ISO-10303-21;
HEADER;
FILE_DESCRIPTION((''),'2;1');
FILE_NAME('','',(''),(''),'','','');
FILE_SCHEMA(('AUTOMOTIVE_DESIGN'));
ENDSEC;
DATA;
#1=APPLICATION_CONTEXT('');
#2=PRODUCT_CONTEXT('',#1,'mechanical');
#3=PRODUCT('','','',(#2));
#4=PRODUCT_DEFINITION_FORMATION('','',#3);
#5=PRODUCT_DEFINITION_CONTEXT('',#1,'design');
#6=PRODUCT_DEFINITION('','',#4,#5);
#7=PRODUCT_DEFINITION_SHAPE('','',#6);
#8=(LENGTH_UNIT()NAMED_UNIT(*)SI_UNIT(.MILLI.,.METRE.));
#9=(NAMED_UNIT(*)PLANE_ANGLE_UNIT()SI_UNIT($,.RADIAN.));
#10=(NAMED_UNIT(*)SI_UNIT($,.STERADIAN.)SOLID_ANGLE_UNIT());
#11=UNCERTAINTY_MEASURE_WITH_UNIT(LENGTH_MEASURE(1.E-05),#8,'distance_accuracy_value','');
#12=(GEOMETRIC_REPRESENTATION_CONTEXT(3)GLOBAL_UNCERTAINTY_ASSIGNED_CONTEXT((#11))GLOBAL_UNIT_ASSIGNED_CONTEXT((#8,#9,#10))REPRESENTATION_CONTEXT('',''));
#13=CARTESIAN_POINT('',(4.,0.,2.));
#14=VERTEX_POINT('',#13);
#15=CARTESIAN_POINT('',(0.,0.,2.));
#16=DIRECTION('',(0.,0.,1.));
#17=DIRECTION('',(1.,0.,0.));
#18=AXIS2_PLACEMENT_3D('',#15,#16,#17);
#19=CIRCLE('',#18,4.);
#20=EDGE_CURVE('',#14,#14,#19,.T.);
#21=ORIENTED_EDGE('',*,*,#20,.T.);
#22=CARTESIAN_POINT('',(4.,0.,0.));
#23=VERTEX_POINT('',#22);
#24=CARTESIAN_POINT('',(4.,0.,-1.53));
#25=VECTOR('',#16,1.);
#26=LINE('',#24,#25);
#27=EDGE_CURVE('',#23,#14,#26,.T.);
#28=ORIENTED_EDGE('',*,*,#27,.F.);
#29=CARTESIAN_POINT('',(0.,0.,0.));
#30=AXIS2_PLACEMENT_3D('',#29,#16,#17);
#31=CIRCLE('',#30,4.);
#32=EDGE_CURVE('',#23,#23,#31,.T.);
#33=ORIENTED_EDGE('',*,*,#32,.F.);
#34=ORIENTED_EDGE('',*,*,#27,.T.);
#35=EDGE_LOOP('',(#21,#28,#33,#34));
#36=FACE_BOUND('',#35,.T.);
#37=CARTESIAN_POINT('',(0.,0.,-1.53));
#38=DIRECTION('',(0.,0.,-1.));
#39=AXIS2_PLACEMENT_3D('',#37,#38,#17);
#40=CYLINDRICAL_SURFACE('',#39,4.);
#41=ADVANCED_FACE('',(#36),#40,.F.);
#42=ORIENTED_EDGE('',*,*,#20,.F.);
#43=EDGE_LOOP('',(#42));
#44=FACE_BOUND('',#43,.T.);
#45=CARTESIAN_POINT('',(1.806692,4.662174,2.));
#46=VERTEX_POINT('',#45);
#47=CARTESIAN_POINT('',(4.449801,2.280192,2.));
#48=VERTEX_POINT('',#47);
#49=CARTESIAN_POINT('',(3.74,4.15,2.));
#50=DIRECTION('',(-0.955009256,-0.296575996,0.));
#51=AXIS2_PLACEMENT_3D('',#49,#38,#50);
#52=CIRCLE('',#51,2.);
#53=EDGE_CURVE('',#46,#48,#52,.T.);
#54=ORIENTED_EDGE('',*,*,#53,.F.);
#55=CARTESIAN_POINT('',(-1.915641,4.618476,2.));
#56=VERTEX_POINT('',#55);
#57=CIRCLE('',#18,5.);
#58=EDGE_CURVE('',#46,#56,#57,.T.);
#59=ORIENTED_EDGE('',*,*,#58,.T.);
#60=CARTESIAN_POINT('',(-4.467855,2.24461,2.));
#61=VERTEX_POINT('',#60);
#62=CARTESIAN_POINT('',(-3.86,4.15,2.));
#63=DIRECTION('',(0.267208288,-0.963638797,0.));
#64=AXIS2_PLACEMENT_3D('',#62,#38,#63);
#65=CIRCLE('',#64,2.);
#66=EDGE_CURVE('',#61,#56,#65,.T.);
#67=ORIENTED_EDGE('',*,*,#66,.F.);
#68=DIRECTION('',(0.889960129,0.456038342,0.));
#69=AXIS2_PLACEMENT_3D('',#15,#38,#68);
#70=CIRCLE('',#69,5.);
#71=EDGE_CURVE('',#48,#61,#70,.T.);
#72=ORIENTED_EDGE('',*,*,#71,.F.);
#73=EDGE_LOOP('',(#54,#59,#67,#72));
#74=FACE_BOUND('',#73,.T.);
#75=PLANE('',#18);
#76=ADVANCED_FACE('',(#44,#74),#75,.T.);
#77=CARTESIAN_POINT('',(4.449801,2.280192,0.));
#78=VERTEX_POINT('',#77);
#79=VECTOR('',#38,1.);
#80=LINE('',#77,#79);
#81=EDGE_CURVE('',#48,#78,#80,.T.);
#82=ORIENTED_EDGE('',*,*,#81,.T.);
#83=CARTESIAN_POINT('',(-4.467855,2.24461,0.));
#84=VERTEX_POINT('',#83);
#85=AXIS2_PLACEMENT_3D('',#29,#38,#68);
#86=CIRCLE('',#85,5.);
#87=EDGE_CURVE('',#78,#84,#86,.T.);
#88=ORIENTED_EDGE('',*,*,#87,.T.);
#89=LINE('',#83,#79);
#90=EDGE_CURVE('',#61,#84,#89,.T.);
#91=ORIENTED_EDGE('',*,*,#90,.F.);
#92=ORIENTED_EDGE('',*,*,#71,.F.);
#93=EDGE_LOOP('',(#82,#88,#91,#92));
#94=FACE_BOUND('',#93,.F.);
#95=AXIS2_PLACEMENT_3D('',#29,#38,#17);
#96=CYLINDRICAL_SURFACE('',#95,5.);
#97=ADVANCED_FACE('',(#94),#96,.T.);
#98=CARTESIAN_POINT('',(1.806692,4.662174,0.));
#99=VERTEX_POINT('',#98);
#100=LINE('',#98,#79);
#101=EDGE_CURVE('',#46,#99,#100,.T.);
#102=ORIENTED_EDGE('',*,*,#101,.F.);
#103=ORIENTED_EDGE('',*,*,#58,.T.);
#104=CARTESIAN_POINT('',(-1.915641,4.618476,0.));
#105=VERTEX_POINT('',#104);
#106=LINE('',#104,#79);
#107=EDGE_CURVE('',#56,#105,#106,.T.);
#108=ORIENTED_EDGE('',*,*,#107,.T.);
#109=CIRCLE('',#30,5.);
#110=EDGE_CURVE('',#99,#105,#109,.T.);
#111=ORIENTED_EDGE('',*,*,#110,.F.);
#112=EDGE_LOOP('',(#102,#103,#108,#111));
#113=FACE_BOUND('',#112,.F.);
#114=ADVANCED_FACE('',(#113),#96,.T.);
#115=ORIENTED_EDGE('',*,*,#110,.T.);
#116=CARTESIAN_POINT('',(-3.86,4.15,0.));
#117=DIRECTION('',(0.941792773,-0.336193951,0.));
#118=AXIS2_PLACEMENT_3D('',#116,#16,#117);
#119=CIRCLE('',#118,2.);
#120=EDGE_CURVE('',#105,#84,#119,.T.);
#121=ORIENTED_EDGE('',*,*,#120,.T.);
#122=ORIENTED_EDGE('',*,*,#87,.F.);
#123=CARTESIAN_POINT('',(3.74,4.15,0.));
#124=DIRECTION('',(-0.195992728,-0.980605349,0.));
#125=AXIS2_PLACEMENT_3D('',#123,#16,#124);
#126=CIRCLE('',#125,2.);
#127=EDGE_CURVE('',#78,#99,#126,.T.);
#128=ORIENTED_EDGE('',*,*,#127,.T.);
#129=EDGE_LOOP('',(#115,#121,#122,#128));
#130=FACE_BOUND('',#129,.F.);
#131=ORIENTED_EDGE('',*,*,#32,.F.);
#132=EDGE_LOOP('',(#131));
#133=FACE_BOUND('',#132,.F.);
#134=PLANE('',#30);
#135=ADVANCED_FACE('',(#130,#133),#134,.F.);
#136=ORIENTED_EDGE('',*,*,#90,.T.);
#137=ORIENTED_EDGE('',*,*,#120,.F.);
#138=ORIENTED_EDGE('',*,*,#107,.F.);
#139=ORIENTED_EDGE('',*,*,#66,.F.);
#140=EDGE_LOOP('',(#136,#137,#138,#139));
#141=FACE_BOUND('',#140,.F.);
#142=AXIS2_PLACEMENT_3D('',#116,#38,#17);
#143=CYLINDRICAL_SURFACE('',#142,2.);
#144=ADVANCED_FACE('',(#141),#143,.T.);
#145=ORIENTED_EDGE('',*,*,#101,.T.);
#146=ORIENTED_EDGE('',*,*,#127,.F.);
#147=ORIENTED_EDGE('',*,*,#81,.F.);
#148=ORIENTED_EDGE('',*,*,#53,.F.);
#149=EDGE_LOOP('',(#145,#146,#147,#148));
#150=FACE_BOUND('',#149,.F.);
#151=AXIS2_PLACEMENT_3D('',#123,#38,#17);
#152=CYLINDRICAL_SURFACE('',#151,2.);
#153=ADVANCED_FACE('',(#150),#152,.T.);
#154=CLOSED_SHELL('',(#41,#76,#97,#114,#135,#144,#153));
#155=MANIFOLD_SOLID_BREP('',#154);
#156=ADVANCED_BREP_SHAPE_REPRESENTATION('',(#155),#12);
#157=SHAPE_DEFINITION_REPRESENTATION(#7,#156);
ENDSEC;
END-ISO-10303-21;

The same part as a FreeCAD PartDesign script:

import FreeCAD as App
import Part
import Sketcher

V = App.Vector

doc = App.newDocument("Part")
body = doc.addObject("PartDesign::Body", "Body")

sketch1 = body.newObject("Sketcher::SketchObject", "Sketch")
sketch1.AttachmentSupport = (doc.getObject("XY_Plane"), [""])
sketch1.MapMode = "FlatFace"
sketch1.AttachmentOffset = App.Placement(V(0, 0, -1.53), App.Rotation())
sketch1.addGeometry(Part.Circle(V(0, 0, 0), V(0, 0, 1), 4), False)
sketch1.addConstraint(Sketcher.Constraint("Coincident", 0, 3, -1, 1))
sketch1.addConstraint(Sketcher.Constraint("Diameter", 0, 8.0))
pad1 = body.newObject("PartDesign::Pad", "Pad")
pad1.Profile = sketch1
pad1.Length = 5
body2 = doc.addObject("PartDesign::Body", "Body001")

sketch2 = body2.newObject("Sketcher::SketchObject", "Sketch001")
sketch2.AttachmentSupport = (doc.getObject("XY_Plane001"), [""])
sketch2.MapMode = "FlatFace"
sketch2.addGeometry(Part.Circle(V(3.7, 4.2, 0), V(0, 0, 1), 2), False)
sketch2.addConstraint(Sketcher.Constraint("Diameter", 0, 4.0))
sketch2.addConstraint(Sketcher.Constraint("DistanceX", -1, 1, 0, 3, 3.74))
sketch2.addConstraint(Sketcher.Constraint("DistanceY", -1, 1, 0, 3, 4.15))
pad2 = body2.newObject("PartDesign::Pad", "Pad001")
pad2.Profile = sketch2
pad2.Length = 2
body3 = doc.addObject("PartDesign::Body", "Body002")
body3.AllowCompound = True

sketch3 = body3.newObject("Sketcher::SketchObject", "Sketch002")
sketch3.AttachmentSupport = (doc.getObject("XY_Plane002"), [""])
sketch3.MapMode = "FlatFace"
sketch3.addGeometry(Part.Circle(V(-3.9, 4.2, 0), V(0, 0, 1), 2), False)
sketch3.addConstraint(Sketcher.Constraint("Diameter", 0, 4.0))
sketch3.addConstraint(Sketcher.Constraint("DistanceX", 0, 3, -1, 1, 3.86))
sketch3.addConstraint(Sketcher.Constraint("DistanceY", -1, 1, 0, 3, 4.15))
pad3 = body3.newObject("PartDesign::Pad", "Pad002")
pad3.Profile = sketch3
pad3.Length = 2
doc.recompute()

boolean = body3.newObject("PartDesign::Boolean", "Boolean")
boolean.Type = "Fuse"
boolean.addObjects([body2])
doc.recompute()

body4 = doc.addObject("PartDesign::Body", "Body003")
body4.BaseFeature = body
boolean2 = body3.newObject("PartDesign::Boolean", "Boolean001")
boolean2.Type = "Cut"
boolean2.addObjects([body4])
doc.recompute()
body5 = doc.addObject("PartDesign::Body", "Body004")

sketch4 = body5.newObject("Sketcher::SketchObject", "Sketch003")
sketch4.AttachmentSupport = (doc.getObject("XY_Plane004"), [""])
sketch4.MapMode = "FlatFace"
sketch4.addGeometry(Part.Circle(V(0, 0, 0), V(0, 0, 1), 5), False)
sketch4.addConstraint(Sketcher.Constraint("Coincident", 0, 3, -1, 1))
sketch4.addConstraint(Sketcher.Constraint("Diameter", 0, 10.0))
pad4 = body5.newObject("PartDesign::Pad", "Pad003")
pad4.Profile = sketch4
pad4.Length = 2
doc.recompute()

boolean3 = body5.newObject("PartDesign::Boolean", "Boolean002")
boolean3.Type = "Cut"
boolean3.addObjects([body])
doc.recompute()

boolean4 = body5.newObject("PartDesign::Boolean", "Boolean003")
boolean4.Type = "Fuse"
boolean4.addObjects([body3])

doc.recompute()
